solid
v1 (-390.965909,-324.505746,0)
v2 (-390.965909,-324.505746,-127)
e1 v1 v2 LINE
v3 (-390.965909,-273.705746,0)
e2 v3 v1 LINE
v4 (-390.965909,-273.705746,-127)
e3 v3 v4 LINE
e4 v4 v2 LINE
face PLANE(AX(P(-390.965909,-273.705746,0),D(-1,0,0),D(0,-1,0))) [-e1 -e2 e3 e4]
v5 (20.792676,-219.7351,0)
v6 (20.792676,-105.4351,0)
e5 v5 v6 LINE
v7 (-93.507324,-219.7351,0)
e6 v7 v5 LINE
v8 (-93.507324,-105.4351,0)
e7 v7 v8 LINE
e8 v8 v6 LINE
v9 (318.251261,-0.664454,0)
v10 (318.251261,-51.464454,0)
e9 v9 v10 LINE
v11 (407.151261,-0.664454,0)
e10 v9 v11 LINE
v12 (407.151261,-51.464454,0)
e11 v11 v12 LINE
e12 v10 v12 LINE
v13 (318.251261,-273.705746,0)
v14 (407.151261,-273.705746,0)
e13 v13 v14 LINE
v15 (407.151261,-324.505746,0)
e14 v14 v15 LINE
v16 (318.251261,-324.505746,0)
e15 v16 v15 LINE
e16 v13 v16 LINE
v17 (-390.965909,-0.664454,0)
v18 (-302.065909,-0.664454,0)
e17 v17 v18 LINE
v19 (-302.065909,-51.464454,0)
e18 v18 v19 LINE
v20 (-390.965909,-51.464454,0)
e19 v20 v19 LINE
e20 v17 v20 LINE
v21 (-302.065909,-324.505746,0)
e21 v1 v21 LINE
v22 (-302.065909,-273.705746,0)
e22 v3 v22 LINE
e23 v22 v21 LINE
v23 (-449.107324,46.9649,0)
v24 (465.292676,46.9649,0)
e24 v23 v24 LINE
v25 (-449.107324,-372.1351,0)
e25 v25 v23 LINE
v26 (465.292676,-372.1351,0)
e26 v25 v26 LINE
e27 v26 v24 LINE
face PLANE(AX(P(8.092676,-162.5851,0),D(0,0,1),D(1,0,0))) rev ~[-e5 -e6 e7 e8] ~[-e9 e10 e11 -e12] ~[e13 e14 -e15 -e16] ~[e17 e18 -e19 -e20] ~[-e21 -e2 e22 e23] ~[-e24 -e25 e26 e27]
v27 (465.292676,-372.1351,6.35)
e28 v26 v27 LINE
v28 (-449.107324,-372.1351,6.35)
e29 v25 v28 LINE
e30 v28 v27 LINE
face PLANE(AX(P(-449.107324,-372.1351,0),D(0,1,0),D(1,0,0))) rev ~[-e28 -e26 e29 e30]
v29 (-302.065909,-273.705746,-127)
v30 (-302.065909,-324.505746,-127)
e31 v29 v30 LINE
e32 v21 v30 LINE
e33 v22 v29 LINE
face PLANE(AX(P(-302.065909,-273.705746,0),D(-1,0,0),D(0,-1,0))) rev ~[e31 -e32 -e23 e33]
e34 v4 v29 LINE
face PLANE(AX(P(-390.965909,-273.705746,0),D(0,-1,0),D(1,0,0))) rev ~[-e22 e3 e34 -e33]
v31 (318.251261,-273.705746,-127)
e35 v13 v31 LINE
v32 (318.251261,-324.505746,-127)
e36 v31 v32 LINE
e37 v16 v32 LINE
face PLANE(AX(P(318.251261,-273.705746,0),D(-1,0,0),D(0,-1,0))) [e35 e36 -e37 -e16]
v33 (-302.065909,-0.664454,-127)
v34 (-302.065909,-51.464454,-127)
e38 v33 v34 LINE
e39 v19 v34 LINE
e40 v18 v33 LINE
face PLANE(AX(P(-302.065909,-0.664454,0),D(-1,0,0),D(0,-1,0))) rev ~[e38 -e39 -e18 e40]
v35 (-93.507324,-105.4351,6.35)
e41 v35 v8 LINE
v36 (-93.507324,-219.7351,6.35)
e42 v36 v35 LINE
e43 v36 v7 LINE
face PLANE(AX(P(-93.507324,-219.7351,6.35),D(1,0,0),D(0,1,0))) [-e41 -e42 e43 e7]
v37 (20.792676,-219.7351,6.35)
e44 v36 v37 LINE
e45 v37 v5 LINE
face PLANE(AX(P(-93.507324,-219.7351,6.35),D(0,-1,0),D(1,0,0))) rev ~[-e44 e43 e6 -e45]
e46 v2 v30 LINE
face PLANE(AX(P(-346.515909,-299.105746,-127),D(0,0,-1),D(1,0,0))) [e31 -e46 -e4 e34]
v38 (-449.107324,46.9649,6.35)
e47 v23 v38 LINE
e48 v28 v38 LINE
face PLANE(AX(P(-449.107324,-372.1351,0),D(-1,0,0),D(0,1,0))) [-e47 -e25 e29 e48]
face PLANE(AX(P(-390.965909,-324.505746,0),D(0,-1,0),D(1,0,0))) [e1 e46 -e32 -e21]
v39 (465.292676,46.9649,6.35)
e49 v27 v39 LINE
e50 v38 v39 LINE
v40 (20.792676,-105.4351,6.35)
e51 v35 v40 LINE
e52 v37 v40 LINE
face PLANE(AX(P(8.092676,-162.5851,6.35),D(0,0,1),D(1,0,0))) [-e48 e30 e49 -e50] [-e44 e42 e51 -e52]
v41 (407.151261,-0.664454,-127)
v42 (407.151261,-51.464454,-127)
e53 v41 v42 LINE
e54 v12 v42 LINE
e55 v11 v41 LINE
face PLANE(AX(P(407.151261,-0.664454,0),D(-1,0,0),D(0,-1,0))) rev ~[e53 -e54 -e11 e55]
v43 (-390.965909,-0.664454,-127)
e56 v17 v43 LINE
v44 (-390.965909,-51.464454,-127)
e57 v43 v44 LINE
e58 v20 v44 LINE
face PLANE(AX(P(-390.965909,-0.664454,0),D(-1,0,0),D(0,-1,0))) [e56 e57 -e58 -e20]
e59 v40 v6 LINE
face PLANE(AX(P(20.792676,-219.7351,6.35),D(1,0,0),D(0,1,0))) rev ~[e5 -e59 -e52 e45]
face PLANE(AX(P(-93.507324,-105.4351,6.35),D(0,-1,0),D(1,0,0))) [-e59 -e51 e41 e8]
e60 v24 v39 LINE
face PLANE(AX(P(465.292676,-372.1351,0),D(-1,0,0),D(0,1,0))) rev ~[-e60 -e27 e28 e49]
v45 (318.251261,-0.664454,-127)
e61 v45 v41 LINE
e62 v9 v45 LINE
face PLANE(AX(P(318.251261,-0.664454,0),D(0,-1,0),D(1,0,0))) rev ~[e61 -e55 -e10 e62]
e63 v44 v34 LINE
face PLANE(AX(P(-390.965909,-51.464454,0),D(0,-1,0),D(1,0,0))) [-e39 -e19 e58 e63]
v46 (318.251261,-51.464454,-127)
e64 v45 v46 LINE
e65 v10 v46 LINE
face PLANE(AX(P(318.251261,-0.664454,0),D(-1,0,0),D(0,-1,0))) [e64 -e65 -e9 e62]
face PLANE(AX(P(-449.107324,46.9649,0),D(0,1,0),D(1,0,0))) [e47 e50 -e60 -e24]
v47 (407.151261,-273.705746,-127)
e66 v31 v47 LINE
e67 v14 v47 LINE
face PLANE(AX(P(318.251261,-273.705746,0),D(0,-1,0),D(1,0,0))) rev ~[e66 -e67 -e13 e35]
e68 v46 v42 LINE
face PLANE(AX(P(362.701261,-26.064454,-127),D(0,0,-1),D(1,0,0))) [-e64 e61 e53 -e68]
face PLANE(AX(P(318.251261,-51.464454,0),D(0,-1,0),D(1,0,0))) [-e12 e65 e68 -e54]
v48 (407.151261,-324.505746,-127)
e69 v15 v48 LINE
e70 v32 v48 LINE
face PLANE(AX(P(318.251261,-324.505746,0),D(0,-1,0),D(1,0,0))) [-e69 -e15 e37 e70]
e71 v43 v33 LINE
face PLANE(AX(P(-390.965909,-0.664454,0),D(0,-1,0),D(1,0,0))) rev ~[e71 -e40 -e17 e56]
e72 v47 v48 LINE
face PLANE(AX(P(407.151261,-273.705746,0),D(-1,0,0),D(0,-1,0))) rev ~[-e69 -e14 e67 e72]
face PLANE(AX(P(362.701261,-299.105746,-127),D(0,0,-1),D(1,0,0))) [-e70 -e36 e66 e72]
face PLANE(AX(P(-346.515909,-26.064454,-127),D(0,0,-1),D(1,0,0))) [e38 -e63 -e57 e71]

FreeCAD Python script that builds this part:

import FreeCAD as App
import Part
import Sketcher

V = App.Vector
Q = App.Units.Quantity


def add_polygon(sketch, points):
    """Adds a closed chain of lines whose ends are joined by coincident constraints."""
    first, n = sketch.GeometryCount, len(points)
    for a, b in zip(points, points[1:] + points[:1]):
        sketch.addGeometry(Part.LineSegment(App.Vector(*a, 0), App.Vector(*b, 0)), False)
    for i in range(n):
        sketch.addConstraint(Sketcher.Constraint("Coincident", first + i, 2, first + (i + 1) % n, 1))

doc = App.newDocument("Part")
params = doc.addObject("Spreadsheet::Sheet", "Params")
for row, (alias, value) in enumerate([
    ("sketch1_width", "36 in"),
    ("sketch1_height", "16.5 in"),
    ("pad1_length", "0.25 in"),
    ("sketch2_height", "2 in"),
    ("sketch2_width", "3.5 in"),
    ("pad2_length", "5 in"),
    ("sketch3_width", "4.5 in"),
    ("pocket1_length", "0.25 in"),
], start=1):
    params.set(f"A{row}", alias)
    params.set(f"B{row}", "=" + value)
    params.setAlias(f"B{row}", alias)

body = doc.addObject("PartDesign::Body", "Body")

sketch1 = body.newObject("Sketcher::SketchObject", "Sketch")
sketch1.AttachmentSupport = (doc.getObject("XY_Plane"), [""])
sketch1.MapMode = "FlatFace"
add_polygon(sketch1, [(-449, 47), (-449, -372), (465, -372), (465, 47)])
sketch1.addConstraint([
    Sketcher.Constraint("Vertical", 0),
    Sketcher.Constraint("Horizontal", 1),
    Sketcher.Constraint("Vertical", 2),
    Sketcher.Constraint("Horizontal", 3),
    Sketcher.Constraint("DistanceX", 1, 1, 1, 2, Q("36 in")),
    Sketcher.Constraint("DistanceY", 0, 2, 0, 1, Q("16.5 in")),
    Sketcher.Constraint("DistanceY", 0, 2, -1, 1, Q("372.1351 mm")),
    Sketcher.Constraint("DistanceX", 0, 2, -1, 1, Q("449.107324 mm")),
])
sketch1.setExpression("Constraints[8]", "Params.sketch1_width")
sketch1.setExpression("Constraints[9]", "Params.sketch1_height")
pad1 = body.newObject("PartDesign::Pad", "Pad")
pad1.Profile = sketch1
pad1.setExpression("Length", "Params.pad1_length")

sketch2 = body.newObject("Sketcher::SketchObject", "Sketch001")
sketch2.AttachmentSupport = (doc.getObject("XY_Plane"), [""])
sketch2.MapMode = "FlatFace"
add_polygon(sketch2, [(-391, -325), (-391, -274), (-302, -274), (-302, -325)])
add_polygon(sketch2, [(-391, -51), (-391, -1), (-302, -1), (-302, -51)])
add_polygon(sketch2, [(318, -325), (318, -274), (407, -274), (407, -325)])
add_polygon(sketch2, [(318, -51), (318, -1), (407, -1), (407, -51)])
sketch2.addConstraint([
    Sketcher.Constraint("Vertical", 0),
    Sketcher.Constraint("Horizontal", 1),
    Sketcher.Constraint("Vertical", 2),
    Sketcher.Constraint("Horizontal", 3),
    Sketcher.Constraint("Vertical", 4),
    Sketcher.Constraint("Horizontal", 5),
    Sketcher.Constraint("Vertical", 6),
    Sketcher.Constraint("Horizontal", 7),
    Sketcher.Constraint("Vertical", 8),
    Sketcher.Constraint("Horizontal", 9),
    Sketcher.Constraint("Vertical", 10),
    Sketcher.Constraint("Horizontal", 11),
    Sketcher.Constraint("Vertical", 12),
    Sketcher.Constraint("Horizontal", 13),
    Sketcher.Constraint("Vertical", 14),
    Sketcher.Constraint("Horizontal", 15),
    Sketcher.Constraint("Horizontal", 1, 2, 8, 2),
    Sketcher.Constraint("Horizontal", 3, 2, 10, 2),
    Sketcher.Constraint("Horizontal", 5, 2, 12, 2),
    Sketcher.Constraint("Horizontal", 7, 2, 14, 2),
    Sketcher.Constraint("Vertical", 3, 2, 4, 2),
    Sketcher.Constraint("Vertical", 2, 2, 5, 2),
    Sketcher.Constraint("Vertical", 11, 2, 12, 2),
    Sketcher.Constraint("Vertical", 10, 2, 13, 2),
    Sketcher.Constraint("Equal", 7, 9),
    Sketcher.Constraint("Equal", 2, 4),
    Sketcher.Constraint("DistanceY", 0, 1, 0, 2, Q("2 in")),
    Sketcher.Constraint("DistanceX", 1, 1, 1, 2, Q("3.5 in")),
    Sketcher.Constraint("DistanceX", 0, 2, -1, 1, Q("390.965909 mm")),
    Sketcher.Constraint("DistanceX", -1, 1, 8, 2, Q("318.251261 mm")),
    Sketcher.Constraint("DistanceY", 0, 2, 4, 2, Q("273.041292 mm")),
    Sketcher.Constraint("DistanceY", 0, 2, -1, 1, Q("273.705746 mm")),
])
sketch2.setExpression("Constraints[42]", "Params.sketch2_height")
sketch2.setExpression("Constraints[43]", "Params.sketch2_width")
pad2 = body.newObject("PartDesign::Pad", "Pad001")
pad2.Profile = sketch2
pad2.setExpression("Length", "Params.pad2_length")
pad2.Reversed = True

sketch3 = body.newObject("Sketcher::SketchObject", "Sketch002")
sketch3.AttachmentSupport = (doc.getObject("XY_Plane"), [""])
sketch3.MapMode = "FlatFace"
sketch3.AttachmentOffset = App.Placement(V(0, 0, 0.25 * 25.4), App.Rotation())
add_polygon(sketch3, [(-94, -105), (-94, -220), (21, -220), (21, -105)])
sketch3.addConstraint([
    Sketcher.Constraint("Vertical", 0),
    Sketcher.Constraint("Horizontal", 1),
    Sketcher.Constraint("Vertical", 2),
    Sketcher.Constraint("Horizontal", 3),
    Sketcher.Constraint("Equal", 3, 0),
    Sketcher.Constraint("DistanceX", 1, 1, 1, 2, Q("4.5 in")),
    Sketcher.Constraint("DistanceY", 0, 2, -1, 1, Q("219.7351 mm")),
    Sketcher.Constraint("DistanceX", 0, 2, -1, 1, Q("93.507324 mm")),
])
sketch3.setExpression("Constraints[9]", "Params.sketch3_width")
pocket1 = body.newObject("PartDesign::Pocket", "Pocket")
pocket1.Profile = sketch3
pocket1.setExpression("Length", "Params.pocket1_length")

doc.recompute()
